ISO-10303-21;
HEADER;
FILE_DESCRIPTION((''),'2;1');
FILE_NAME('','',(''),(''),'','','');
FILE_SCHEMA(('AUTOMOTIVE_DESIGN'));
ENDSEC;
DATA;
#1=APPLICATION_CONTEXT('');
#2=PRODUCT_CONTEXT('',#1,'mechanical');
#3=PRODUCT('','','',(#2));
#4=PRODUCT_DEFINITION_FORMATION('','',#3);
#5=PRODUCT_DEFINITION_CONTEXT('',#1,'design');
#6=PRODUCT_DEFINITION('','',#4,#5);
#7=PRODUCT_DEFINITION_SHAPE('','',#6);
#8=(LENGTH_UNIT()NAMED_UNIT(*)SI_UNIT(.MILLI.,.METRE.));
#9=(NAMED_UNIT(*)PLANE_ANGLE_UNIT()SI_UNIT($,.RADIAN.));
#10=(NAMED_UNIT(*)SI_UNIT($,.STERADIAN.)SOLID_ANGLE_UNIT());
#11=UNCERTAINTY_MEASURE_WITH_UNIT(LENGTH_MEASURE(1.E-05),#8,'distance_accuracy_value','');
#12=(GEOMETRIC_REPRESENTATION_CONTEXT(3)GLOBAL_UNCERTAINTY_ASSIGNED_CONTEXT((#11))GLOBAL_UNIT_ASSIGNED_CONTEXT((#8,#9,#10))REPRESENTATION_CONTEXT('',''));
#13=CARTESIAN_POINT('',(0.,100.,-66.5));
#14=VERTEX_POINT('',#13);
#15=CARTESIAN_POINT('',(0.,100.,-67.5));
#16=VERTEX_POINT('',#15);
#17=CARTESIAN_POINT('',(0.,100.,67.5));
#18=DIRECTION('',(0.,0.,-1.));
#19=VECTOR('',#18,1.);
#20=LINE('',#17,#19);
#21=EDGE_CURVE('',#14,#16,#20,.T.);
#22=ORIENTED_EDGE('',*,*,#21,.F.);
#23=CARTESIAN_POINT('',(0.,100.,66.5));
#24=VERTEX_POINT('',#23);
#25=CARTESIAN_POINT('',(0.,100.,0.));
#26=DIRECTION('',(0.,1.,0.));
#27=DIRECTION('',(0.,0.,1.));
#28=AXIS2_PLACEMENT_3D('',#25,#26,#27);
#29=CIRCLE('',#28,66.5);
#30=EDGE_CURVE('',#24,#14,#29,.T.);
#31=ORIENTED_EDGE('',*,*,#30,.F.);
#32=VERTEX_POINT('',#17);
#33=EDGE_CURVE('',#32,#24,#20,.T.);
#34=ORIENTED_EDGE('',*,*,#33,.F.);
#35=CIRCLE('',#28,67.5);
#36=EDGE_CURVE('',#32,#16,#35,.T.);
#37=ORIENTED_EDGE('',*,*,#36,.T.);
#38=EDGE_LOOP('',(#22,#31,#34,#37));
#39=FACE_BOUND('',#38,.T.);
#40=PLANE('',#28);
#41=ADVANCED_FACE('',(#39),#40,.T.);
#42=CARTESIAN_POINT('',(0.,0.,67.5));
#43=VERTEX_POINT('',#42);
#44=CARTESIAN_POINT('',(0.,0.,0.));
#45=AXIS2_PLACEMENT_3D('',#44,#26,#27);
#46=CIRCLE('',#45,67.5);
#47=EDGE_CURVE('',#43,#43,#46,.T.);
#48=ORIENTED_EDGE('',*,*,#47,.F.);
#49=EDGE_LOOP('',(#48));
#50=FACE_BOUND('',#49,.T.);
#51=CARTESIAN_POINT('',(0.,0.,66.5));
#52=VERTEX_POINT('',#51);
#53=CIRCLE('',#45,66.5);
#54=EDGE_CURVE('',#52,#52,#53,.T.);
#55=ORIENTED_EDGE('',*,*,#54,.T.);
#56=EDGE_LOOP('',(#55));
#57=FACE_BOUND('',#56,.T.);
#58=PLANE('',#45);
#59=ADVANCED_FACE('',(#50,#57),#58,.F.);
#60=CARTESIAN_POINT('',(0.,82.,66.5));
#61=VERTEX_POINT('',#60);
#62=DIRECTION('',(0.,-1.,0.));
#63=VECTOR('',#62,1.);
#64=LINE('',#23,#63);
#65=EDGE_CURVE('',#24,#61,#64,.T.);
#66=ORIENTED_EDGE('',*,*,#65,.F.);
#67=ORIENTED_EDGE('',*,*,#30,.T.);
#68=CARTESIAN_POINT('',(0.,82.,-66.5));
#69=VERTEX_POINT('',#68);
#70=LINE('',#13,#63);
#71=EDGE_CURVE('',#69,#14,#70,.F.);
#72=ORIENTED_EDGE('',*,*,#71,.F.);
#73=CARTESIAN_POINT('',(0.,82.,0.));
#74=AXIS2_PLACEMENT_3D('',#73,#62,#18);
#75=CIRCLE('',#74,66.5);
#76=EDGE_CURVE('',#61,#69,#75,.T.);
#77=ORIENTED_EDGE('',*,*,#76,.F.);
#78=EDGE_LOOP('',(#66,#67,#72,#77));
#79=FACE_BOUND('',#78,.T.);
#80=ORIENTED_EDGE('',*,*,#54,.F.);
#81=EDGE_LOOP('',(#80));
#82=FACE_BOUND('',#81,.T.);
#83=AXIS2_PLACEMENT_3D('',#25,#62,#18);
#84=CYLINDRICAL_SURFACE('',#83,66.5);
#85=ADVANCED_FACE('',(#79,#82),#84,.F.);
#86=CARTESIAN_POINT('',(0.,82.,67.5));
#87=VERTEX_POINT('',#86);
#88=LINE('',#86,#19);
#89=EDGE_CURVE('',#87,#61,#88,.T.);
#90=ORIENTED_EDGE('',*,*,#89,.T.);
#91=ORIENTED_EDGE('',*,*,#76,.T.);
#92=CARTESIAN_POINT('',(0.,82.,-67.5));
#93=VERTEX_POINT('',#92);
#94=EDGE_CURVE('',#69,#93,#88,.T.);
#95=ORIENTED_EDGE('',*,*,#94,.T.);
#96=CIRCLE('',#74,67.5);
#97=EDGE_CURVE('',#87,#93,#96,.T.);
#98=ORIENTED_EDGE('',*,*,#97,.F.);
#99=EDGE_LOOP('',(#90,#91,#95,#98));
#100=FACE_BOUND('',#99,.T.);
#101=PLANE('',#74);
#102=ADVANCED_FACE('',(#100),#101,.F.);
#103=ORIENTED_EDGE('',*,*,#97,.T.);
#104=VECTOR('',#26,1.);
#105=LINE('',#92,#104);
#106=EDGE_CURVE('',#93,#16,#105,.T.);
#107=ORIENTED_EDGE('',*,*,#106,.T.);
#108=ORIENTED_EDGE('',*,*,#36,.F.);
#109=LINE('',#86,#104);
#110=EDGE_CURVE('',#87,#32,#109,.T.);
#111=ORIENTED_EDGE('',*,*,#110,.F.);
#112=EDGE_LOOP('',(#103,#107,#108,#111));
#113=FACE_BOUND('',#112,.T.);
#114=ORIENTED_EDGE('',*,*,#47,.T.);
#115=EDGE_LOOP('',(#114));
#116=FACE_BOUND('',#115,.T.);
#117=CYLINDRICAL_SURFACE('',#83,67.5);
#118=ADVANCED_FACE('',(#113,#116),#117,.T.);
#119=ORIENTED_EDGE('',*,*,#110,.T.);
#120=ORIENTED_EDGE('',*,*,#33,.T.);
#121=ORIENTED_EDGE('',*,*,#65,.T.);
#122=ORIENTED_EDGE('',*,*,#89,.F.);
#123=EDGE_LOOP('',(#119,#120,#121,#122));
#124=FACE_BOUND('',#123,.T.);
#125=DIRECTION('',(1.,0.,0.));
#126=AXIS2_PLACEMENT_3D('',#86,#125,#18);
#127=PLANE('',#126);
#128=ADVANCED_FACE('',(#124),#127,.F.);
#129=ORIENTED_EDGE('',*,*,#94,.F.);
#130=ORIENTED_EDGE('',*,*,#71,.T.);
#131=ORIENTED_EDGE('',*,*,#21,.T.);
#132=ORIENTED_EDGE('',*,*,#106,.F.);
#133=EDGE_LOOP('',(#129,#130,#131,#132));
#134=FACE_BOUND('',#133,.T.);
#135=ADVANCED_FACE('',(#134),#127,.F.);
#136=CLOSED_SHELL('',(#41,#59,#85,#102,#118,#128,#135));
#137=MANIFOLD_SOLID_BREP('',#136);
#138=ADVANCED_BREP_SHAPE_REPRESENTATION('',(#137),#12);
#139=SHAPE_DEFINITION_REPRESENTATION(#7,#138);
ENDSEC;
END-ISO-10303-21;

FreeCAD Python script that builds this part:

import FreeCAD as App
import Part
import Sketcher
Q = App.Units.Quantity

doc = App.newDocument("Part")
params = doc.addObject("Spreadsheet::Sheet", "Params")
for row, (alias, value) in enumerate([
    ("sketch1_diameter", "135 mm"),
    ("sketch1_diameter2", "133 mm"),
    ("pad1_length", "100 mm"),
    ("sketch2_height", "135 mm"),
    ("sketch2_width", "67.5 mm"),
    ("pocket1_length", "18 mm"),
], start=1):
    params.set(f"A{row}", alias)
    params.set(f"B{row}", "=" + value)
    params.setAlias(f"B{row}", alias)

body = doc.addObject("PartDesign::Body", "Body")

# Sketch on XZ plane
sketch1 = doc.addObject("Sketcher::SketchObject", "Sketch")
body.addObject(sketch1)
sketch1.AttachmentSupport = (doc.XZ_Plane, [""])
sketch1.MapMode = "FlatFace"
sketch1.addGeometry(Part.Circle(App.Vector(0, 0, 0), App.Vector(0, 0, 1), 68), False)
sketch1.addGeometry(Part.Circle(App.Vector(0, 0, 0), App.Vector(0, 0, 1), 66), False)
sketch1.addConstraint(Sketcher.Constraint("Coincident", 0, 3, -1, 1))
sketch1.addConstraint(Sketcher.Constraint("Coincident", 1, 3, -1, 1))
sketch1.addConstraint(Sketcher.Constraint("Diameter", 0, Q("135 mm")))
sketch1.addConstraint(Sketcher.Constraint("Diameter", 1, Q("133 mm")))
sketch1.setExpression("Constraints[2]", "Params.sketch1_diameter")
sketch1.setExpression("Constraints[3]", "Params.sketch1_diameter2")
pad1 = doc.addObject("PartDesign::Pad", "Pad")
body.addObject(pad1)
pad1.Profile = sketch1
pad1.setExpression("Length", "Params.pad1_length")
pad1.Reversed = True

# Sketch on XZ plane
sketch2 = doc.addObject("Sketcher::SketchObject", "Sketch001")
body.addObject(sketch2)
sketch2.AttachmentSupport = (doc.XZ_Plane, [""])
sketch2.MapMode = "FlatFace"
sketch2.AttachmentOffset = App.Placement(App.Vector(0, 0, -100), App.Rotation())
sketch2.addGeometry(Part.LineSegment(App.Vector(-68, -68, 0), App.Vector(-68, 68, 0)), False)
sketch2.addGeometry(Part.LineSegment(App.Vector(-68, 68, 0), App.Vector(0, 68, 0)), False)
sketch2.addGeometry(Part.LineSegment(App.Vector(0, 68, 0), App.Vector(0, -68, 0)), False)
sketch2.addGeometry(Part.LineSegment(App.Vector(0, -68, 0), App.Vector(-68, -68, 0)), False)
sketch2.addConstraint(Sketcher.Constraint("Coincident", 0, 2, 1, 1))
sketch2.addConstraint(Sketcher.Constraint("Coincident", 1, 2, 2, 1))
sketch2.addConstraint(Sketcher.Constraint("Coincident", 2, 2, 3, 1))
sketch2.addConstraint(Sketcher.Constraint("Coincident", 3, 2, 0, 1))
sketch2.addConstraint(Sketcher.Constraint("Vertical", 0))
sketch2.addConstraint(Sketcher.Constraint("Horizontal", 1))
sketch2.addConstraint(Sketcher.Constraint("Vertical", 2))
sketch2.addConstraint(Sketcher.Constraint("Horizontal", 3))
sketch2.addConstraint(Sketcher.Constraint("Symmetric", 1, 2, 2, 2, -1, 1))
sketch2.addConstraint(Sketcher.Constraint("DistanceY", 0, 1, 0, 2, Q("135 mm")))
sketch2.addConstraint(Sketcher.Constraint("DistanceX", 1, 1, 1, 2, Q("67.5 mm")))
sketch2.setExpression("Constraints[9]", "Params.sketch2_height")
sketch2.setExpression("Constraints[10]", "Params.sketch2_width")
pocket1 = doc.addObject("PartDesign::Pocket", "Pocket")
body.addObject(pocket1)
pocket1.Profile = sketch2
pocket1.setExpression("Length", "Params.pocket1_length")
pocket1.Reversed = True

doc.recompute()
